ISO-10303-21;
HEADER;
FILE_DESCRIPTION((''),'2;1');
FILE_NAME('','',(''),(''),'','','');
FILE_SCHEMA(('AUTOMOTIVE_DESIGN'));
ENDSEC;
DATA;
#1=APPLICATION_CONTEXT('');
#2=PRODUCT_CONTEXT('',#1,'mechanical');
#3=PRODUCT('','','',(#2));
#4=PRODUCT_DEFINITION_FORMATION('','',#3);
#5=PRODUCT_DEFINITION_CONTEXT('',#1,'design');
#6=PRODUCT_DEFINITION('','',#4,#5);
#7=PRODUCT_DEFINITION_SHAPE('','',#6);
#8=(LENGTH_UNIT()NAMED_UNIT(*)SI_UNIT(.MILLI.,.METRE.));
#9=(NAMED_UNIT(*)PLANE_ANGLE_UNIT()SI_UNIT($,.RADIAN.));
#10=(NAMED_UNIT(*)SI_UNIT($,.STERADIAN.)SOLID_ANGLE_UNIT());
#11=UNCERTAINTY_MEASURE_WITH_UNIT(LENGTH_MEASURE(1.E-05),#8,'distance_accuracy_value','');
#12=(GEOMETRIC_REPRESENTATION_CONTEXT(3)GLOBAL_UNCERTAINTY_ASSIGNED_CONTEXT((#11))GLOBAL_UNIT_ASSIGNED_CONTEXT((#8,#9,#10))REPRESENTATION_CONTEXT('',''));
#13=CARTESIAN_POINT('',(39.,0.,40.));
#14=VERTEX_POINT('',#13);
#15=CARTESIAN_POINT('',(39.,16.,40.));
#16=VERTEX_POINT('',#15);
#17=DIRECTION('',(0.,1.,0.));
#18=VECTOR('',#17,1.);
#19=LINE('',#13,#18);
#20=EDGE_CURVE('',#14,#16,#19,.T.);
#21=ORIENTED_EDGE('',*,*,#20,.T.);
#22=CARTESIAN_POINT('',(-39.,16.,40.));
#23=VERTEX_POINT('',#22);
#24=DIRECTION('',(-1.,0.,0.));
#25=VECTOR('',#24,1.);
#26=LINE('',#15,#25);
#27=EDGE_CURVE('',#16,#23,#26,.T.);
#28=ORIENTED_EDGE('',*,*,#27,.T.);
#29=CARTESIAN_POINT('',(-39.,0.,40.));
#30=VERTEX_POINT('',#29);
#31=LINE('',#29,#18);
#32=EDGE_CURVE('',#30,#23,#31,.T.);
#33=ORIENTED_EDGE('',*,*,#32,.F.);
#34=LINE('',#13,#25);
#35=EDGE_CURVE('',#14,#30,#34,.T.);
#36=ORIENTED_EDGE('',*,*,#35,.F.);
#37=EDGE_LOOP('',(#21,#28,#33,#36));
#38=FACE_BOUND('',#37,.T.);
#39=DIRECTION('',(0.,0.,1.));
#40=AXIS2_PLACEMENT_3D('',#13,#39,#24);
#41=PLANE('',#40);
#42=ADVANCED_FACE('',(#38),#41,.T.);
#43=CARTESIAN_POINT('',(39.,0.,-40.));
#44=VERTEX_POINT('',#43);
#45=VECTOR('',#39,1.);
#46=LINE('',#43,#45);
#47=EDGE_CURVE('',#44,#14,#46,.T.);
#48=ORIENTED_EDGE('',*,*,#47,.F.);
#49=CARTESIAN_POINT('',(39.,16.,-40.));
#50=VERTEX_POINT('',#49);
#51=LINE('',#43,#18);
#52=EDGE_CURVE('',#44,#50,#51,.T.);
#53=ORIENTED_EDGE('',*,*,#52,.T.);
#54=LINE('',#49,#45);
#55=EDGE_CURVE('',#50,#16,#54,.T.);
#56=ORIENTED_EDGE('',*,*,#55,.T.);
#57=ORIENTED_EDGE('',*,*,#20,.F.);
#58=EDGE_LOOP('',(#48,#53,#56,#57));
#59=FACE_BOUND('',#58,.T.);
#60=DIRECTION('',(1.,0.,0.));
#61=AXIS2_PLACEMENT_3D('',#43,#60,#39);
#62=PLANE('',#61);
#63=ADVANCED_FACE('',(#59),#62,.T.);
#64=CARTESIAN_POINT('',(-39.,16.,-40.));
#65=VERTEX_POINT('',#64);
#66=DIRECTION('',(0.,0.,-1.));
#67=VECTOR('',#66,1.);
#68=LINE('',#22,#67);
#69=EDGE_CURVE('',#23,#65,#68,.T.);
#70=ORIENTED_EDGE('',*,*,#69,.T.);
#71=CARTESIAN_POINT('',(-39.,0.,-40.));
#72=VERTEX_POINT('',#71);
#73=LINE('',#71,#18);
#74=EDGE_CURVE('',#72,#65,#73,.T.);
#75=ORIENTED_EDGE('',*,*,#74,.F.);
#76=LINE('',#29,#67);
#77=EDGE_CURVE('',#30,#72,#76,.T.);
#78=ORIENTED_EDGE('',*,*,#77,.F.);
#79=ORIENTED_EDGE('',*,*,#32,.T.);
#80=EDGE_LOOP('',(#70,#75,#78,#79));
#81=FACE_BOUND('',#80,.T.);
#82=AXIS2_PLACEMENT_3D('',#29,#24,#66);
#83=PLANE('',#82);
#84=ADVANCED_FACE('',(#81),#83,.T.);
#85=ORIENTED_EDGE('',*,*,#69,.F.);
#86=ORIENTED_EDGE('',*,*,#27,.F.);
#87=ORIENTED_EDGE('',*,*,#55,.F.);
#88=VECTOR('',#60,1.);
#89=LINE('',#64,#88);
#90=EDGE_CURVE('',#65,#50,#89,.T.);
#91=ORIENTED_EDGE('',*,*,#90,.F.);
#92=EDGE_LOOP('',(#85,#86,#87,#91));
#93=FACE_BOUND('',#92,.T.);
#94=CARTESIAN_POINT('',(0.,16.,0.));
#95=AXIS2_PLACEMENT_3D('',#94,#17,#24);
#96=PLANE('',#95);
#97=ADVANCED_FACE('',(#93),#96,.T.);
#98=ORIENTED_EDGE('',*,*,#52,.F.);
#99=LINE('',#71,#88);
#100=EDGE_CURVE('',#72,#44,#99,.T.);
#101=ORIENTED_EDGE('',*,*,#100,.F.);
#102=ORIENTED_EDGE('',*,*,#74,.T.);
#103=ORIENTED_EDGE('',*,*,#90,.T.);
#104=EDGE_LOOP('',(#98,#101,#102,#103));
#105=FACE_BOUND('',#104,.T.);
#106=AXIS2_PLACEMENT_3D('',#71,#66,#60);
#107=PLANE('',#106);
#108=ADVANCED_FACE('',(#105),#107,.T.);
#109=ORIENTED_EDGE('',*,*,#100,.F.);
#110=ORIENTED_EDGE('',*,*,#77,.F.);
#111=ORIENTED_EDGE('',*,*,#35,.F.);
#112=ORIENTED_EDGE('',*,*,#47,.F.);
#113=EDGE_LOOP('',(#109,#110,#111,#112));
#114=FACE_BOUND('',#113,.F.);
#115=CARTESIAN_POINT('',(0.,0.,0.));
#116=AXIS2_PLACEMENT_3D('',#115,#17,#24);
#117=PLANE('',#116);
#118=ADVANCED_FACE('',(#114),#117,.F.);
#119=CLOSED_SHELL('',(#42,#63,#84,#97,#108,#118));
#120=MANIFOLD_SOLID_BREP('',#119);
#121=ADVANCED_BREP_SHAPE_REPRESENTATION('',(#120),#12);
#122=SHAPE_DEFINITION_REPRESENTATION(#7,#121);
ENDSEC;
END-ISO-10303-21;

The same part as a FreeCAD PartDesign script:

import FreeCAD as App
import Part
import Sketcher

doc = App.newDocument("Part")
body = doc.addObject("PartDesign::Body", "Body")

# Sketch on XZ plane
sketch1 = body.newObject("Sketcher::SketchObject", "Sketch")
sketch1.AttachmentSupport = (doc.getObject("XZ_Plane"), [""])
sketch1.MapMode = "FlatFace"
sketch1.addGeometry([
    Part.LineSegment(App.Vector(39, -40, 0), App.Vector(-39, -40, 0)),
    Part.LineSegment(App.Vector(-39, -40, 0), App.Vector(-39, 40, 0)),
    Part.LineSegment(App.Vector(-39, 40, 0), App.Vector(39, 40, 0)),
    Part.LineSegment(App.Vector(39, 40, 0), App.Vector(39, -40, 0)),
], False)
sketch1.addConstraint([
    Sketcher.Constraint("Coincident", 0, 2, 1, 1),
    Sketcher.Constraint("Coincident", 1, 2, 2, 1),
    Sketcher.Constraint("Coincident", 2, 2, 3, 1),
    Sketcher.Constraint("Coincident", 3, 2, 0, 1),
    Sketcher.Constraint("Horizontal", 0),
    Sketcher.Constraint("Vertical", 1),
    Sketcher.Constraint("Horizontal", 2),
    Sketcher.Constraint("Vertical", 3),
    Sketcher.Constraint("Symmetric", 0, 2, 2, 2, -1, 1),
    Sketcher.Constraint("DistanceX", 0, 2, 0, 1, 78.0),
    Sketcher.Constraint("DistanceY", 1, 1, 1, 2, 80.0),
])
pad1 = body.newObject("PartDesign::Pad", "Pad")
pad1.Profile = sketch1
pad1.Length = 16
pad1.Reversed = True

doc.recompute()
